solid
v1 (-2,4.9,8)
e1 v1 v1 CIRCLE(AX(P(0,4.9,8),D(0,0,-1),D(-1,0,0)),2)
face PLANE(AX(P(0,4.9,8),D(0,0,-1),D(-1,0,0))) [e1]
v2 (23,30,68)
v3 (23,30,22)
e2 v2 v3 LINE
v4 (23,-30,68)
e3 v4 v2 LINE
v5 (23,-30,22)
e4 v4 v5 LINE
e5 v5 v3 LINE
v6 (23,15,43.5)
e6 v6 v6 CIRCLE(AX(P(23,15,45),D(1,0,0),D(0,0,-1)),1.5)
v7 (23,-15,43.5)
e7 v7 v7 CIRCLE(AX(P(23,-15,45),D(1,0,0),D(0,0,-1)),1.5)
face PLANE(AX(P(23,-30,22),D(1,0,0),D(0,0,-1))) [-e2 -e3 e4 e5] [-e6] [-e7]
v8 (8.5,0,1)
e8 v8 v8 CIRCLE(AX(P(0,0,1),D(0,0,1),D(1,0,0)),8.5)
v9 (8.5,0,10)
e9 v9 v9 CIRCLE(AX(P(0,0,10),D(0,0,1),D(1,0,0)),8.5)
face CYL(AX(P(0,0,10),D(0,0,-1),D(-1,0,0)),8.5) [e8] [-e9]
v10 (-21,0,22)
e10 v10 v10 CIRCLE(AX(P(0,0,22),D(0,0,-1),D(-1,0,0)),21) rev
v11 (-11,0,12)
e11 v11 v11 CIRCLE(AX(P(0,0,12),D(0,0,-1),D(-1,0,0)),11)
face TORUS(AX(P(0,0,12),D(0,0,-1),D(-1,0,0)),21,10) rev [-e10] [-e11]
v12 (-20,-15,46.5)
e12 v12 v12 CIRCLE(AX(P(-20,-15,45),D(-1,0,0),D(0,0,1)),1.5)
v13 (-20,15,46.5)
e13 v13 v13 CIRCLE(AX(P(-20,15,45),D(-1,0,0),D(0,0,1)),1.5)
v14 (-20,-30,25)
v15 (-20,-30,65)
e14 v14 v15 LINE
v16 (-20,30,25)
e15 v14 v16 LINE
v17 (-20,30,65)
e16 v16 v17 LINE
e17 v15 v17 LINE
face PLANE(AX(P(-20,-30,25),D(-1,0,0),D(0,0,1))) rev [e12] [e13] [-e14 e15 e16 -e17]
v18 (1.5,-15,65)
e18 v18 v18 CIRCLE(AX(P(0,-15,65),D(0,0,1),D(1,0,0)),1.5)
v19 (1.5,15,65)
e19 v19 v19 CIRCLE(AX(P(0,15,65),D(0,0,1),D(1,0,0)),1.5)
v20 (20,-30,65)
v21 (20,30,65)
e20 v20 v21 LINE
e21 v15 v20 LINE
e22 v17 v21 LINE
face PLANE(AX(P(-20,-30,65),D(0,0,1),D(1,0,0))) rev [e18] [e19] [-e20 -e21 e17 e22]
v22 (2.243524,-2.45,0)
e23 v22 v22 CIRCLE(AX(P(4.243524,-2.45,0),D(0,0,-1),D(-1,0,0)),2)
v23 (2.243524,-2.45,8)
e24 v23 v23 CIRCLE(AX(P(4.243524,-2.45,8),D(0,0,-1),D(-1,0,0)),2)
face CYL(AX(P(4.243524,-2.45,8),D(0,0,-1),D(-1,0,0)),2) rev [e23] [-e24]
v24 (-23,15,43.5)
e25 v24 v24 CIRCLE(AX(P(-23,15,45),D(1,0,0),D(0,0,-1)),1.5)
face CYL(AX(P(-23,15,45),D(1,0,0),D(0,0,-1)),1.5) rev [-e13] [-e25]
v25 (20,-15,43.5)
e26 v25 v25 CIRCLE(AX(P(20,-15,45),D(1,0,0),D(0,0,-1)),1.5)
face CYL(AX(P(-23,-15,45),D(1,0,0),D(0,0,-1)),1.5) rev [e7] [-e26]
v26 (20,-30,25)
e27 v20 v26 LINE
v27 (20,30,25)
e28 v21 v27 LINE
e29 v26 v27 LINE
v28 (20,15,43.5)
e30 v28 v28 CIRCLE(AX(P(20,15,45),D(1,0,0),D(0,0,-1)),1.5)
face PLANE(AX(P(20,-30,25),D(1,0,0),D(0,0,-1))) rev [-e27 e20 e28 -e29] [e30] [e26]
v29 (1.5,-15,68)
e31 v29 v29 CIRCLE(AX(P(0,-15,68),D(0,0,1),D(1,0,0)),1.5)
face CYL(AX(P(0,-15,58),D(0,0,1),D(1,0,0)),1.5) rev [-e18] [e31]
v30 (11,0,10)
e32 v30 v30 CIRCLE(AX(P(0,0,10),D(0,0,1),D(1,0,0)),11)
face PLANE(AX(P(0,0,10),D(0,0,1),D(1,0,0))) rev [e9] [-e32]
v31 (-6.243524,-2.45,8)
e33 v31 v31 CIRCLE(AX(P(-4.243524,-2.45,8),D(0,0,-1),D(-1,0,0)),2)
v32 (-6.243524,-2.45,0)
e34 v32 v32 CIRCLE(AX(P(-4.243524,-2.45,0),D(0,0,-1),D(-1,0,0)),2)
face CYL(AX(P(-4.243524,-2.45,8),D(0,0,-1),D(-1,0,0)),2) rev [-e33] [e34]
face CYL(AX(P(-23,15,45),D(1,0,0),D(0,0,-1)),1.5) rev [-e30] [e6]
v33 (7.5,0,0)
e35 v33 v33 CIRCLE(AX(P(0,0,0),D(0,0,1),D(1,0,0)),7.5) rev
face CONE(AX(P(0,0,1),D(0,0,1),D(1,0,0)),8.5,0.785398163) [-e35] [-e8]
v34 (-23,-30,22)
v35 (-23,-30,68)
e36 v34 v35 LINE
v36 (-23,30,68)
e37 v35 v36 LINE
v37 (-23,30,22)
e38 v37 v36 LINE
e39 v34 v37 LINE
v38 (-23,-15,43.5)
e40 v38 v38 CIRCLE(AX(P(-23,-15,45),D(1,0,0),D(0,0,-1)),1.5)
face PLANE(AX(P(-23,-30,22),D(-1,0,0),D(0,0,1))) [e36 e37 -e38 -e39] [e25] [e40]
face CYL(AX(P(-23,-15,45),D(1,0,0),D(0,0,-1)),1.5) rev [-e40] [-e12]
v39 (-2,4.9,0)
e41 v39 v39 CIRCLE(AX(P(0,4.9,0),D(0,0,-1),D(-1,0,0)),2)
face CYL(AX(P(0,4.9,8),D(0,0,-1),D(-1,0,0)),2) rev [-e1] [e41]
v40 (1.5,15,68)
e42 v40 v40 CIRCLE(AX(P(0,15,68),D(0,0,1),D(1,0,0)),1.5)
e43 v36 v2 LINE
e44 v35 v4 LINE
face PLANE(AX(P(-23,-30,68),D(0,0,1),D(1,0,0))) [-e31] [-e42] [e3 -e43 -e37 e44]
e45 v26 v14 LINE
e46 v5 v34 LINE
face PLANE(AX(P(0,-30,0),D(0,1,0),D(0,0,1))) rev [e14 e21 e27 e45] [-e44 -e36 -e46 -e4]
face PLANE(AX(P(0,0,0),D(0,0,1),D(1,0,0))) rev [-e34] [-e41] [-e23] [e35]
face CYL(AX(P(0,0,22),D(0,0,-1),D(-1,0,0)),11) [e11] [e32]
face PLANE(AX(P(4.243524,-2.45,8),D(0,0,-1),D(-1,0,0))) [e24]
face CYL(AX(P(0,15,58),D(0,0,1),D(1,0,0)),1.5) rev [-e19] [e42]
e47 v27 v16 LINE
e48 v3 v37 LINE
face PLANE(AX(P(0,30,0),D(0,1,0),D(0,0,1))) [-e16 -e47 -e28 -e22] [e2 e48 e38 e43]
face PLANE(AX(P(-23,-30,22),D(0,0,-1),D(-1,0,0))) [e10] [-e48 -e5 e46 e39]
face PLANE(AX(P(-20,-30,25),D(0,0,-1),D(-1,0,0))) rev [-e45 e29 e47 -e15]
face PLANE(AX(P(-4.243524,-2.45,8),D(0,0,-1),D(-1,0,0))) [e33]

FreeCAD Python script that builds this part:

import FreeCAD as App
import Part
import Sketcher

V = App.Vector
Q = App.Units.Quantity


def edges_at(feature, points):
    """Names of the edges that pass closest to the given points."""
    edges = feature.Shape.Edges
    near = lambda p: min(range(len(edges)), key=lambda i: edges[i].distToShape(Part.Vertex(*p))[0])
    return sorted({f"Edge{near(p) + 1}" for p in points})

doc = App.newDocument("Part")
body = doc.addObject("PartDesign::Body", "Body")

sketch1 = body.newObject("Sketcher::SketchObject", "Sketch")
sketch1.AttachmentSupport = (doc.getObject("XY_Plane"), [""])
sketch1.MapMode = "FlatFace"
sketch1.addGeometry(Part.Circle(V(0, 0, 0), V(0, 0, 1), 8.5), False)
sketch1.addConstraint([
    Sketcher.Constraint("Coincident", 0, 3, -1, 1),
    Sketcher.Constraint("Diameter", 0, Q("17 mm")),
])
pad1 = body.newObject("PartDesign::Pad", "Pad")
pad1.Profile = sketch1
pad1.Length = 10

sketch2 = body.newObject("Sketcher::SketchObject", "Sketch001")
sketch2.AttachmentSupport = (doc.getObject("XY_Plane"), [""])
sketch2.MapMode = "FlatFace"
sketch2.AttachmentOffset = App.Placement(V(0, 0, 10), App.Rotation())
sketch2.addGeometry(Part.Circle(V(0, 0, 0), V(0, 0, 1), 11), False)
sketch2.addConstraint([
    Sketcher.Constraint("Coincident", 0, 3, -1, 1),
    Sketcher.Constraint("Diameter", 0, Q("22 mm")),
])
pad2 = body.newObject("PartDesign::Pad", "Pad001")
pad2.Profile = sketch2
pad2.Length = 12

sketch3 = body.newObject("Sketcher::SketchObject", "Sketch002")
sketch3.AttachmentSupport = (doc.getObject("XY_Plane"), [""])
sketch3.MapMode = "FlatFace"
sketch3.addGeometry([
    Part.Circle(V(0, 4.9, 0), V(0, 0, 1), 2),
    Part.Circle(V(-4.243524, -2.45, 0), V(0, 0, 1), 2),
    Part.Circle(V(4.243524, -2.45, 0), V(0, 0, 1), 2),
], False)
sketch3.addConstraint([
    Sketcher.Constraint("Equal", 0, 1),
    Sketcher.Constraint("Equal", 1, 2),
    Sketcher.Constraint("Symmetric", 1, 3, 2, 3, -2),
    Sketcher.Constraint("PointOnObject", 0, 3, -2),
    Sketcher.Constraint("Diameter", 0, Q("4 mm")),
    Sketcher.Constraint("DistanceY", -1, 1, 0, 3, Q("4.9 mm")),
    Sketcher.Constraint("DistanceY", 1, 3, -1, 1, Q("2.45 mm")),
    Sketcher.Constraint("DistanceX", 1, 3, 2, 3, Q("8.487049 mm")),
])
pocket1 = body.newObject("PartDesign::Pocket", "Pocket")
pocket1.Profile = sketch3
pocket1.Length = 8
pocket1.Reversed = True
doc.recompute()

chamfer = body.newObject("PartDesign::Chamfer", "Chamfer")
chamfer.Base = (pocket1, edges_at(pocket1, [(-8.5, 0, 0)]))
chamfer.Size = 1

sketch4 = body.newObject("Sketcher::SketchObject", "Sketch003")
sketch4.AttachmentSupport = (doc.getObject("XZ_Plane"), [""])
sketch4.MapMode = "FlatFace"
sketch4.addGeometry([
    Part.LineSegment(V(-23, 22, 0), V(-23, 68, 0)),
    Part.LineSegment(V(-23, 68, 0), V(23, 68, 0)),
    Part.LineSegment(V(23, 68, 0), V(23, 22, 0)),
    Part.LineSegment(V(23, 22, 0), V(-23, 22, 0)),
    Part.LineSegment(V(20, 65, 0), V(-20, 65, 0)),
    Part.LineSegment(V(-20, 65, 0), V(-20, 25, 0)),
    Part.LineSegment(V(-20, 25, 0), V(20, 25, 0)),
    Part.LineSegment(V(20, 25, 0), V(20, 65, 0)),
], False)
sketch4.addConstraint([
    Sketcher.Constraint("Coincident", 0, 2, 1, 1),
    Sketcher.Constraint("Coincident", 1, 2, 2, 1),
    Sketcher.Constraint("Coincident", 2, 2, 3, 1),
    Sketcher.Constraint("Coincident", 3, 2, 0, 1),
    Sketcher.Constraint("Coincident", 4, 2, 5, 1),
    Sketcher.Constraint("Coincident", 5, 2, 6, 1),
    Sketcher.Constraint("Coincident", 6, 2, 7, 1),
    Sketcher.Constraint("Coincident", 7, 2, 4, 1),
    Sketcher.Constraint("Vertical", 0),
    Sketcher.Constraint("Horizontal", 1),
    Sketcher.Constraint("Vertical", 2),
    Sketcher.Constraint("Horizontal", 3),
    Sketcher.Constraint("Horizontal", 4),
    Sketcher.Constraint("Vertical", 5),
    Sketcher.Constraint("Horizontal", 6),
    Sketcher.Constraint("Vertical", 7),
    Sketcher.Constraint("Equal", 3, 0),
    Sketcher.Constraint("Equal", 6, 5),
    Sketcher.Constraint("DistanceX", 1, 1, 1, 2, Q("46 mm")),
    Sketcher.Constraint("DistanceX", 4, 2, 4, 1, Q("40 mm")),
    Sketcher.Constraint("DistanceX", 0, 2, -1, 1, Q("23 mm")),
    Sketcher.Constraint("DistanceY", -1, 1, 0, 2, Q("68 mm")),
    Sketcher.Constraint("DistanceX", 4, 2, -1, 1, Q("20 mm")),
    Sketcher.Constraint("DistanceY", -1, 1, 4, 2, Q("65 mm")),
])
pad3 = body.newObject("PartDesign::Pad", "Pad002")
pad3.Profile = sketch4
pad3.Type = "TwoLengths"
pad3.Length = 30
pad3.Length2 = 30
pad3.Reversed = True

sketch5 = body.newObject("Sketcher::SketchObject", "Sketch004")
sketch5.AttachmentSupport = (doc.getObject("YZ_Plane"), [""])
sketch5.MapMode = "FlatFace"
sketch5.AttachmentOffset = App.Placement(V(0, 0, 23), App.Rotation())
sketch5.addGeometry([
    Part.Circle(V(15, 45, 0), V(0, 0, 1), 1.5),
    Part.Circle(V(-15, 45, 0), V(0, 0, 1), 1.5),
], False)
sketch5.addConstraint([
    Sketcher.Constraint("Equal", 0, 1),
    Sketcher.Constraint("Symmetric", 0, 3, 1, 3, -2),
    Sketcher.Constraint("Diameter", 0, Q("3 mm")),
    Sketcher.Constraint("DistanceX", -1, 1, 0, 3, Q("15 mm")),
    Sketcher.Constraint("DistanceY", -1, 1, 0, 3, Q("45 mm")),
])
pocket2 = body.newObject("PartDesign::Pocket", "Pocket001")
pocket2.Profile = sketch5
pocket2.Type = "ThroughAll"
pocket2.Midplane = True

sketch6 = body.newObject("Sketcher::SketchObject", "Sketch005")
sketch6.AttachmentSupport = (doc.getObject("XY_Plane"), [""])
sketch6.MapMode = "FlatFace"
sketch6.AttachmentOffset = App.Placement(V(0, 0, 68), App.Rotation())
sketch6.addGeometry([
    Part.Circle(V(0, 15, 0), V(0, 0, 1), 1.5),
    Part.Circle(V(0, -15, 0), V(0, 0, 1), 1.5),
], False)
sketch6.addConstraint([
    Sketcher.Constraint("Equal", 0, 1),
    Sketcher.Constraint("Symmetric", 0, 3, 1, 3, -1, 1),
    Sketcher.Constraint("PointOnObject", 0, 3, -2),
    Sketcher.Constraint("Diameter", 0, Q("3 mm")),
    Sketcher.Constraint("DistanceY", -1, 1, 0, 3, Q("15 mm")),
])
pocket3 = body.newObject("PartDesign::Pocket", "Pocket002")
pocket3.Profile = sketch6
pocket3.Length = 10
doc.recompute()

fillet = body.newObject("PartDesign::Fillet", "Fillet")
fillet.Base = (pocket3, edges_at(pocket3, [(-11, 0, 22)]))
fillet.Radius = 10

doc.recompute()
